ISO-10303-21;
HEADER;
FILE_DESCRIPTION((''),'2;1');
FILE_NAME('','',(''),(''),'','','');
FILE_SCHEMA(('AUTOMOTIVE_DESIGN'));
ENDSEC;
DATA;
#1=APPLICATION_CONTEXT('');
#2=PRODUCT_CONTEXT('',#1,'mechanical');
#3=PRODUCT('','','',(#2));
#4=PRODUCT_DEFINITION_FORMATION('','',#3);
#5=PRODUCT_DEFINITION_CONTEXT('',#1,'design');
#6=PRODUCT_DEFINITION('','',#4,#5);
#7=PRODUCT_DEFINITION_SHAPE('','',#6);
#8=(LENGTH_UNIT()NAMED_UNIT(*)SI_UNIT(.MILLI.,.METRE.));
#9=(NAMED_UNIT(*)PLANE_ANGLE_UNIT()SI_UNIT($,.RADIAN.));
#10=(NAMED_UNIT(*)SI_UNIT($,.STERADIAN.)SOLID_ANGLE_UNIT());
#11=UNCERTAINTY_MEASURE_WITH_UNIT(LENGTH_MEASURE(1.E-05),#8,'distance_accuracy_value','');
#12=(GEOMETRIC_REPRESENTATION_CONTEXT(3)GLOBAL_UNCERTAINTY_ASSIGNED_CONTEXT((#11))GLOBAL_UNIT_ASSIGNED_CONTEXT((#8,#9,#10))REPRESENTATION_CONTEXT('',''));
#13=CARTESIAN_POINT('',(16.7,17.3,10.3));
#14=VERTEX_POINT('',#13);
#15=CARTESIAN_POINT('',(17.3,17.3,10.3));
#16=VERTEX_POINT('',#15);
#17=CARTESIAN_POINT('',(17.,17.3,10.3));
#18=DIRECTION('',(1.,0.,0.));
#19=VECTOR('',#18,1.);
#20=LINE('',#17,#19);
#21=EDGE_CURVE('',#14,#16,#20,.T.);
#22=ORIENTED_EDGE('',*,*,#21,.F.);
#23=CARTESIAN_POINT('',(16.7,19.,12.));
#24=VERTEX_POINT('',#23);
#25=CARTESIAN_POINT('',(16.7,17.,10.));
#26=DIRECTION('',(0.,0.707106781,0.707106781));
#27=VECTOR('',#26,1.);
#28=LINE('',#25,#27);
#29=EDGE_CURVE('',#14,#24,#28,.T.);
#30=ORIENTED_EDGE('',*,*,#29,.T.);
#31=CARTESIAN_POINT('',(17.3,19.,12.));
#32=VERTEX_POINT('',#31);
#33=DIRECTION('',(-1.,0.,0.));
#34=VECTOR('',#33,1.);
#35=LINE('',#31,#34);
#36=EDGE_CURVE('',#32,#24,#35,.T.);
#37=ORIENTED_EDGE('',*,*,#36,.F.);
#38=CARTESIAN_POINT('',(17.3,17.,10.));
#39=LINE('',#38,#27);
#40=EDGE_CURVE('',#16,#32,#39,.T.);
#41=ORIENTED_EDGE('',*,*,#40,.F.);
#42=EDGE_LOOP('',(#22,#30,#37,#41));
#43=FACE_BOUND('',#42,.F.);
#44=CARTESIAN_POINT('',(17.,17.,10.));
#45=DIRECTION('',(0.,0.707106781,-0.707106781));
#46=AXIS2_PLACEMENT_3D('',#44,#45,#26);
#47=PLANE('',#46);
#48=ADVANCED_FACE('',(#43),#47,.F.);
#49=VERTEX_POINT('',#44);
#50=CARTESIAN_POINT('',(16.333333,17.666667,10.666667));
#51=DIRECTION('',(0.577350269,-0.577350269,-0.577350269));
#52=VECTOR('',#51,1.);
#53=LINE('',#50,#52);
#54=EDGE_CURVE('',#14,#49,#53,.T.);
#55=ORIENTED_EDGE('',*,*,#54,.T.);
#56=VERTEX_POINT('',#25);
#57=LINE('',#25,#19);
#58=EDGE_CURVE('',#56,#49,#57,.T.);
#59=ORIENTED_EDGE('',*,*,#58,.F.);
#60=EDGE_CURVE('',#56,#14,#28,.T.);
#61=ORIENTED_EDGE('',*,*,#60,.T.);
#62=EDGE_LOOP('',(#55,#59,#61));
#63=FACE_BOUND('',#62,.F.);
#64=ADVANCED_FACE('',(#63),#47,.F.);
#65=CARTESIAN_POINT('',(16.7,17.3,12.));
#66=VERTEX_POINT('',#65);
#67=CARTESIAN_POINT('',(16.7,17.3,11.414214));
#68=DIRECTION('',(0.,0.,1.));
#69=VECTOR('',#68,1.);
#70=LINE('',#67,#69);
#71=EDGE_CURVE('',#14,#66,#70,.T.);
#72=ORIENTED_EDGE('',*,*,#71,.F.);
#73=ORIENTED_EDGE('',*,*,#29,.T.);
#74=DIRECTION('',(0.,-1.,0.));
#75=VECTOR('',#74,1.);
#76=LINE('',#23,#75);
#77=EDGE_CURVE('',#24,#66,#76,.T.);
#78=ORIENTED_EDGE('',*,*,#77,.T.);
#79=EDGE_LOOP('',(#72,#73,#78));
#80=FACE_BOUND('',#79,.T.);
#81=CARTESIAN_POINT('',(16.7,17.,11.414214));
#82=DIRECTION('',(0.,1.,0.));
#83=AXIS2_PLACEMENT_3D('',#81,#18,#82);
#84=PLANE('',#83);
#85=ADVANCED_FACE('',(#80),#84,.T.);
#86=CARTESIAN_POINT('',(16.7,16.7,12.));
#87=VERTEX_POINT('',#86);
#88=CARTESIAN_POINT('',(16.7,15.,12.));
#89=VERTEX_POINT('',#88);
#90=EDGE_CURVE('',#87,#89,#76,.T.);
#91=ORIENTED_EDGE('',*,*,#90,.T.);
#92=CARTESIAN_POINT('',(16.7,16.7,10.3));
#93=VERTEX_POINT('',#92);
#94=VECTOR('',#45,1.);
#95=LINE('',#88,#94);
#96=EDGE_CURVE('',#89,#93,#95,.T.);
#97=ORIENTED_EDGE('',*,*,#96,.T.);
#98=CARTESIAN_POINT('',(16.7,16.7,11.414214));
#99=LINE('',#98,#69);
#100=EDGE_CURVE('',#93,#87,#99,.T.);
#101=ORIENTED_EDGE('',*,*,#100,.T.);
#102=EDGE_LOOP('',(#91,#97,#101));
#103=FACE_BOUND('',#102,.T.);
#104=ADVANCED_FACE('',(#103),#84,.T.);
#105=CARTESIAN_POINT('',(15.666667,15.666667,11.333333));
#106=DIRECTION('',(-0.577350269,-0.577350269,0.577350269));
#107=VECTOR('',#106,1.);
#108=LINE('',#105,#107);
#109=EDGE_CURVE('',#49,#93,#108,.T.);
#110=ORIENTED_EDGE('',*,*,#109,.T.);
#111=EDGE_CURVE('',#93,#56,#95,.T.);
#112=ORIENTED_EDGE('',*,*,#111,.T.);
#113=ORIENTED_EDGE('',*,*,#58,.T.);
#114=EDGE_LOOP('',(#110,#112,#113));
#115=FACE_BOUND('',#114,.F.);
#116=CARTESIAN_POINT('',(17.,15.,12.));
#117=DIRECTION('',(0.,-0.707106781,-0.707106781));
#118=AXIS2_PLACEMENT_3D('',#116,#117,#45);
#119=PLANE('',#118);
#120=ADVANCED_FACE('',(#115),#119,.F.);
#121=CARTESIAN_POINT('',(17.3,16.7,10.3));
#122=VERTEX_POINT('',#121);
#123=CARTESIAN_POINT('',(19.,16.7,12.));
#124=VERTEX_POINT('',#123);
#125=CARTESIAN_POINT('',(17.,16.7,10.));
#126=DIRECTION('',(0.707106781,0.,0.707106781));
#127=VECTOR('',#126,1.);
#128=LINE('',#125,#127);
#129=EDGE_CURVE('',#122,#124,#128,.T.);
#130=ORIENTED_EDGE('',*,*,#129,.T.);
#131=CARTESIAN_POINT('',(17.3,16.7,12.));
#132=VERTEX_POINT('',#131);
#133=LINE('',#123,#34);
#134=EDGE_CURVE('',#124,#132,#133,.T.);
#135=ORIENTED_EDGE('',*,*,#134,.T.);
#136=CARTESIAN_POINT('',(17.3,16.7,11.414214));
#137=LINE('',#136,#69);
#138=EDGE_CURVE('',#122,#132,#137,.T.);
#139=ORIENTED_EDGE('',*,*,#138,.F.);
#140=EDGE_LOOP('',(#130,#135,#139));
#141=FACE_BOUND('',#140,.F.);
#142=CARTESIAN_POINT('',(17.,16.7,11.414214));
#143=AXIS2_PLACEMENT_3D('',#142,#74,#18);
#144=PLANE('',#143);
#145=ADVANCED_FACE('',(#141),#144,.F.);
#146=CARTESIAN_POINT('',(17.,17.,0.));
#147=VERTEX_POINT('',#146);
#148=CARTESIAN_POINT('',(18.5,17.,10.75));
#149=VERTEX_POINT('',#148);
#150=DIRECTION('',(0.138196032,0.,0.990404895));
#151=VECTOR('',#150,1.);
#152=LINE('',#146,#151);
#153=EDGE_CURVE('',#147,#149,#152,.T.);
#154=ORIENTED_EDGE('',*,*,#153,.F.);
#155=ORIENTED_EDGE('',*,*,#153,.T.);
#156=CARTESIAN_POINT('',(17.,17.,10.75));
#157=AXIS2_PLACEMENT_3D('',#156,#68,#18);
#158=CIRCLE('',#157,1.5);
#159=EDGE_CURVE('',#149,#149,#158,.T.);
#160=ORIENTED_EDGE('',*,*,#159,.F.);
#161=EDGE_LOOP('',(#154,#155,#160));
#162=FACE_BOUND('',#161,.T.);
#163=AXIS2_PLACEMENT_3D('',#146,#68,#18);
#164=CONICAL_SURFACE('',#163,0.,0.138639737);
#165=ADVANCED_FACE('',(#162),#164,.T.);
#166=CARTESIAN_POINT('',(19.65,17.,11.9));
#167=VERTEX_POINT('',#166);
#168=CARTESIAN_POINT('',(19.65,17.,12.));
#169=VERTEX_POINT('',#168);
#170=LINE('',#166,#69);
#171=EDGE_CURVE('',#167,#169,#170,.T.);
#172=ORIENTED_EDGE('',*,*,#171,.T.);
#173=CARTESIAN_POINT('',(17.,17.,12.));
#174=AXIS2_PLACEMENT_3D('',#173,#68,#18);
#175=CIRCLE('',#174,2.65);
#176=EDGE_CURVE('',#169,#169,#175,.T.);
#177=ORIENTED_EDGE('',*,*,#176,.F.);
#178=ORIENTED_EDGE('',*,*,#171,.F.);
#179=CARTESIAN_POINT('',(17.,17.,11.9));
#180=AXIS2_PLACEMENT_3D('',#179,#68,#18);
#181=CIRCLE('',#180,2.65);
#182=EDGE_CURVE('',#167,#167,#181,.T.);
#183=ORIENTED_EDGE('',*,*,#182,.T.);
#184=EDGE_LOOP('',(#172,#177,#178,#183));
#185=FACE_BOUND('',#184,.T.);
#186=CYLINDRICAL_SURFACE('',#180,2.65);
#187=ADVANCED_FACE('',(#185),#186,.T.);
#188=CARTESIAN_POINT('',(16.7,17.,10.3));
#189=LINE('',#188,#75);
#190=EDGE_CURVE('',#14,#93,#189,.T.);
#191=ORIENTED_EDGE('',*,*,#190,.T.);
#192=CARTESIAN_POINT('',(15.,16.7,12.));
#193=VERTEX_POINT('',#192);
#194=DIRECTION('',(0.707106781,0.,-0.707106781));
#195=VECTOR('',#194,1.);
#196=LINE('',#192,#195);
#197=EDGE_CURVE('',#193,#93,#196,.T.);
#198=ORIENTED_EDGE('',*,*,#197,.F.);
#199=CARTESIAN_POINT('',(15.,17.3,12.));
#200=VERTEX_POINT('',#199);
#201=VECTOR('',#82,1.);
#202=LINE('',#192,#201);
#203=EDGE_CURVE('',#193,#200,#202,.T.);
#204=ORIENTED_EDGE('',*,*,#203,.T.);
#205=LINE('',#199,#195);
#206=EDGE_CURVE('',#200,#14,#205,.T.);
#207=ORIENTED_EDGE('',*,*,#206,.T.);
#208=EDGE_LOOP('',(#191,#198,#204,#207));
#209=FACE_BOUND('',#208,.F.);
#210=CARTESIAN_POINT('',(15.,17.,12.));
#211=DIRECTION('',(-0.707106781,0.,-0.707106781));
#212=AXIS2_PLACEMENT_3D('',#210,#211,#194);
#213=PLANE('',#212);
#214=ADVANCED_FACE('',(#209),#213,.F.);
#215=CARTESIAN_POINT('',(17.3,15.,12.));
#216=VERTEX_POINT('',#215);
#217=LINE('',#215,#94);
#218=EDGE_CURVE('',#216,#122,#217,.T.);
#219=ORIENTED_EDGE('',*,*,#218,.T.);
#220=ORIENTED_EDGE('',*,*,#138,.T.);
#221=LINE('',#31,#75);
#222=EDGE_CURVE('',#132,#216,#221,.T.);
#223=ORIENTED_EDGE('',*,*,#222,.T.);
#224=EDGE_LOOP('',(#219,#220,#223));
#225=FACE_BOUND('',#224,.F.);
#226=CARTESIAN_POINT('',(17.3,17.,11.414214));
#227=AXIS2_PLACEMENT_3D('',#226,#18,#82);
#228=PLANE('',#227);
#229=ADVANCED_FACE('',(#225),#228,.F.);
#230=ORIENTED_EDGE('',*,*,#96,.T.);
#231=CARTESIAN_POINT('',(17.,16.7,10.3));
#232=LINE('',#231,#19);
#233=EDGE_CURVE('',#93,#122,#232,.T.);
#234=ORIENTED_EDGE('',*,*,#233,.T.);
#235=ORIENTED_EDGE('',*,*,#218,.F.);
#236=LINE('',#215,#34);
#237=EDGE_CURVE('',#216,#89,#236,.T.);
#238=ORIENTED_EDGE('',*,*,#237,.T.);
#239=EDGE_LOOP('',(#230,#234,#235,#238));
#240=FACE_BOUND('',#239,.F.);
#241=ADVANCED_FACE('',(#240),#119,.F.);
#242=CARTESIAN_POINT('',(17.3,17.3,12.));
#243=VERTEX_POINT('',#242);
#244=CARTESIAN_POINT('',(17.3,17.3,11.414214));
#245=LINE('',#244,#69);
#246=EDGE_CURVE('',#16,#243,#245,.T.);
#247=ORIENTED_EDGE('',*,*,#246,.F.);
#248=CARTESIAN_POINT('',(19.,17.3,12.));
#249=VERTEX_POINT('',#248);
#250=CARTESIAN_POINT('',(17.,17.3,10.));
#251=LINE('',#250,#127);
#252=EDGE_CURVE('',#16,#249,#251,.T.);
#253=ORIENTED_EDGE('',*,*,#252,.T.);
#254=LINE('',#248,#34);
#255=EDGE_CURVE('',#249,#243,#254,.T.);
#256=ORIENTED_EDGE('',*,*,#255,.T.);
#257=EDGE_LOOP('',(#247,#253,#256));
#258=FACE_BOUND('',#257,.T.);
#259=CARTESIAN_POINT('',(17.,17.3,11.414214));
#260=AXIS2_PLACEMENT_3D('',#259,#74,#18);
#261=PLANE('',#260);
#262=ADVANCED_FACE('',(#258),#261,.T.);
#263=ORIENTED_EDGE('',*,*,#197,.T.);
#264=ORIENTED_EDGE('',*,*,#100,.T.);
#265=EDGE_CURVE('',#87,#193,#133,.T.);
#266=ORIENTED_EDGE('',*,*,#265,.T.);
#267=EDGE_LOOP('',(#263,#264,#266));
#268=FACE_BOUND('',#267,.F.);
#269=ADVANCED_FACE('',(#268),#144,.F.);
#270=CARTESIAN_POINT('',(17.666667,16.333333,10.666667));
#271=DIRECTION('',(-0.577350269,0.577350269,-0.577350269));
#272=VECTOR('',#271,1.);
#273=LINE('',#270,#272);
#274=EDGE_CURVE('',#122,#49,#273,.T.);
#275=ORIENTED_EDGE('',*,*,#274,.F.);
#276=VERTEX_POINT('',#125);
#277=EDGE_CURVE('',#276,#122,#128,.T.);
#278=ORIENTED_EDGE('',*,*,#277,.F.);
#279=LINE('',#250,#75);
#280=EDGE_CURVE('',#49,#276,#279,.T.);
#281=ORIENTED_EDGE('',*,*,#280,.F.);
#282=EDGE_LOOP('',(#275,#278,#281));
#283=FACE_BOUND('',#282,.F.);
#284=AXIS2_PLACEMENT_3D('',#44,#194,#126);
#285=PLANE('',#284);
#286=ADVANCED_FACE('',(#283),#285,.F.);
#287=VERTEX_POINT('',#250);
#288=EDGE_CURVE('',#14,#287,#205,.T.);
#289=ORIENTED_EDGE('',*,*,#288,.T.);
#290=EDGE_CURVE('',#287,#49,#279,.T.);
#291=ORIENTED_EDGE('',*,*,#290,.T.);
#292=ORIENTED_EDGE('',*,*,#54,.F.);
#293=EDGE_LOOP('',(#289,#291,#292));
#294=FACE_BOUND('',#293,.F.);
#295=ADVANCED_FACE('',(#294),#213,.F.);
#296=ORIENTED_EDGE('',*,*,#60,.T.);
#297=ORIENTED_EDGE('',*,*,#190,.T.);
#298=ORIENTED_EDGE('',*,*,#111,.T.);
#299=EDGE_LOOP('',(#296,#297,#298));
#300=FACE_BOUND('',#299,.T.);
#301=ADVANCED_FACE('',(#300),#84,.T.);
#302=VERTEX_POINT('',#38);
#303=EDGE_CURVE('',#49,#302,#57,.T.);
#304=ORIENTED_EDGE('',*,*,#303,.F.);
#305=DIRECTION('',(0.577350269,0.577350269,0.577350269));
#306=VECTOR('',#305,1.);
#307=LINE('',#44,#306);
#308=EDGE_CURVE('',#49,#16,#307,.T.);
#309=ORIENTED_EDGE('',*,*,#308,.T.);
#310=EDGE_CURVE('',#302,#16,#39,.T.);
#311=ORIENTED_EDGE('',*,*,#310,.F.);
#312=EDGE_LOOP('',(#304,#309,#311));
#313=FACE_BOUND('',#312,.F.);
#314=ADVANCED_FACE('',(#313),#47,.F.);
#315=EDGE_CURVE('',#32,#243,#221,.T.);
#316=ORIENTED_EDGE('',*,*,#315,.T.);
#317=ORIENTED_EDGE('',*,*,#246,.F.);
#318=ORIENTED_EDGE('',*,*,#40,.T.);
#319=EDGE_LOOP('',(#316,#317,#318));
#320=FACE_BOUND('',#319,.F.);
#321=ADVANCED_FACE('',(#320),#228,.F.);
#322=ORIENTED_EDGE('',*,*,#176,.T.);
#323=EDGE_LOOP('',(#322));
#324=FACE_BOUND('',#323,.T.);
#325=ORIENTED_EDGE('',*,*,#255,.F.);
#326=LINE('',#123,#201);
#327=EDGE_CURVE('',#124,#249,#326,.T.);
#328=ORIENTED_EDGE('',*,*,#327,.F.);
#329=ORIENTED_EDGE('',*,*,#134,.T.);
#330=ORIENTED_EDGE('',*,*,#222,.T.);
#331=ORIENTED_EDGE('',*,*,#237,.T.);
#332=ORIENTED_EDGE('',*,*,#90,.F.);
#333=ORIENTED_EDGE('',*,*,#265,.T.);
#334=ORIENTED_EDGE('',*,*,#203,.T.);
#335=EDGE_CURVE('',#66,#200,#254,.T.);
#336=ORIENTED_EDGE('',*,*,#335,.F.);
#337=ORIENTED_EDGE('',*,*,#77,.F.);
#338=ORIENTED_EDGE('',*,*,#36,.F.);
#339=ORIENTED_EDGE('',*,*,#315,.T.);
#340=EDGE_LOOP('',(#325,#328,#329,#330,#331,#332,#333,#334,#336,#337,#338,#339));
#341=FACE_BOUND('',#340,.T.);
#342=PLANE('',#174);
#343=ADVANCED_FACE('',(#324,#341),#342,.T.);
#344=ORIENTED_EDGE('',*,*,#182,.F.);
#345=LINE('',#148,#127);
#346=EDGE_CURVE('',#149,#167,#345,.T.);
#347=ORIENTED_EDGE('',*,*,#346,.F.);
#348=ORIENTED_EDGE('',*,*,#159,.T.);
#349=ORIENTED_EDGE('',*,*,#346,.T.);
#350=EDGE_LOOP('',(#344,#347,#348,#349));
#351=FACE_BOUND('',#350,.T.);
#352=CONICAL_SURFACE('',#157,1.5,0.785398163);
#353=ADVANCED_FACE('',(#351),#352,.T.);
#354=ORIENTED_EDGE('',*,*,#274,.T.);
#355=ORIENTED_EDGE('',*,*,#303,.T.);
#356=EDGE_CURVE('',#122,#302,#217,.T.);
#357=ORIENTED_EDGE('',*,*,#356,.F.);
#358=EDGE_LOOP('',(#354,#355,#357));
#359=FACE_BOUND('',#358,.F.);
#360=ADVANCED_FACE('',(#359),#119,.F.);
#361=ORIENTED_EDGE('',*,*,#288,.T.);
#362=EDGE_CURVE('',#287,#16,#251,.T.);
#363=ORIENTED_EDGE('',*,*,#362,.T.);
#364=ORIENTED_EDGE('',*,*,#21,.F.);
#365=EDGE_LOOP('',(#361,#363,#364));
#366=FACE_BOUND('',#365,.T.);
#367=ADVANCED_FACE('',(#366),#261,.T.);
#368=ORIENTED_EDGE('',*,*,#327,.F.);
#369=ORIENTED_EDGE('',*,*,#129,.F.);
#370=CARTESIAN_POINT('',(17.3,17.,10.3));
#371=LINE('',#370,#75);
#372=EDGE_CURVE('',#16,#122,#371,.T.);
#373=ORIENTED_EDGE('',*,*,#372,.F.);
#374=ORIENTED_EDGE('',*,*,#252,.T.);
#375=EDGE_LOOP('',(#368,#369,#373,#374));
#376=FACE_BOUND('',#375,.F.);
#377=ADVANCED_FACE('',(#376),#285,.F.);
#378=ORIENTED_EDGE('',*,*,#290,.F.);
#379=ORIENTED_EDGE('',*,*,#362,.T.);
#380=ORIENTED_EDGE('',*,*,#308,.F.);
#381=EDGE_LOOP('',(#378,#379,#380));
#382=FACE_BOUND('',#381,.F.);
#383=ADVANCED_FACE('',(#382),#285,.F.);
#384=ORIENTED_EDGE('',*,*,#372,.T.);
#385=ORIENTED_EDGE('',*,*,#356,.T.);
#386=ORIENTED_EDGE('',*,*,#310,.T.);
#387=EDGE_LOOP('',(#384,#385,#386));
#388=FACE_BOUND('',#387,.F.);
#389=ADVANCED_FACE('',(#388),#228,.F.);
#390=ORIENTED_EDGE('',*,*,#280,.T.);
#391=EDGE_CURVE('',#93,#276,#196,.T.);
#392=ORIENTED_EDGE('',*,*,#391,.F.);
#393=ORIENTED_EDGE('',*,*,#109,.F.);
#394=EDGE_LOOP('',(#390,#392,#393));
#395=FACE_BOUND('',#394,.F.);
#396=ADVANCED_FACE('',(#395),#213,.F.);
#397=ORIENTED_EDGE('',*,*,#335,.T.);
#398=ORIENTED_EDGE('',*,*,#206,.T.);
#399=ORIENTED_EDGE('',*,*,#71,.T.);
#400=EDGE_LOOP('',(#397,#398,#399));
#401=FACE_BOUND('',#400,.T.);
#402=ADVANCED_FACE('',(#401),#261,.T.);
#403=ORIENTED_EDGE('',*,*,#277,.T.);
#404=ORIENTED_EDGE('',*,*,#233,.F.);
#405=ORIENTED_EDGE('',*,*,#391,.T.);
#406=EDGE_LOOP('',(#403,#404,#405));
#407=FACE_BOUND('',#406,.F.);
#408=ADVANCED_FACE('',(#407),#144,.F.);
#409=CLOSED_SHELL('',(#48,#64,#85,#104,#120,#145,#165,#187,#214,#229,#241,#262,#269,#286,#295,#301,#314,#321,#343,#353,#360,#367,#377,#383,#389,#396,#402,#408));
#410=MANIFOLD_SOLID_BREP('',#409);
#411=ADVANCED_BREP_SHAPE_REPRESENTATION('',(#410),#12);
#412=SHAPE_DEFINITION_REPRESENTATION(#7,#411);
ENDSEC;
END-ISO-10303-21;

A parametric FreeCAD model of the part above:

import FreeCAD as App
import Part
import Sketcher
Q = App.Units.Quantity

doc = App.newDocument("Part")
body = doc.addObject("PartDesign::Body", "Body")

# Sketch on XZ plane
sketch1 = body.newObject("Sketcher::SketchObject", "Sketch")
sketch1.AttachmentSupport = (doc.getObject("XZ_Plane"), [""])
sketch1.MapMode = "FlatFace"
sketch1.addGeometry([
    Part.LineSegment(App.Vector(0, 0, 0), App.Vector(0, -12, 0)),  # 0
    Part.LineSegment(App.Vector(0, -12, 0), App.Vector(1.5, -1.25, 0)),  # 1
    Part.LineSegment(App.Vector(1.5, -1.25, 0), App.Vector(2.65, -0.1, 0)),  # 2
    Part.LineSegment(App.Vector(2.65, -0.1, 0), App.Vector(2.65, 0, 0)),  # 3
    Part.LineSegment(App.Vector(2.65, 0, 0), App.Vector(0, 0, 0)),  # 4
], False)
sketch1.addConstraint([
    Sketcher.Constraint("Coincident", 0, 2, 1, 1),
    Sketcher.Constraint("Coincident", 1, 2, 2, 1),
    Sketcher.Constraint("Coincident", 2, 2, 3, 1),
    Sketcher.Constraint("Coincident", 3, 2, 4, 1),
    Sketcher.Constraint("Coincident", 4, 2, 0, 1),
    Sketcher.Constraint("Vertical", 0),
    Sketcher.Constraint("Vertical", 3),
    Sketcher.Constraint("Horizontal", 4),
    Sketcher.Constraint("Coincident", 4, 2, -1, 1),
    Sketcher.Constraint("DistanceY", 0, 2, 0, 1, Q("12 mm")),
    Sketcher.Constraint("Angle", 2, Q("45 deg")),
    Sketcher.Constraint("DistanceY", 3, 1, 3, 2, Q("0.1 mm")),
    Sketcher.Constraint("DistanceX", 4, 2, 4, 1, Q("2.65 mm")),
    Sketcher.Constraint("DistanceX", -1, 1, 1, 2, Q("1.5 mm")),
])
revolution = body.newObject("PartDesign::Revolution", "Revolution")
revolution.Profile = sketch1
revolution.ReferenceAxis = (sketch1, ["V_Axis"])
revolution.Angle = 360

# Sketch on XZ plane
sketch2 = body.newObject("Sketcher::SketchObject", "Sketch001")
sketch2.AttachmentSupport = (doc.getObject("XZ_Plane"), [""])
sketch2.MapMode = "FlatFace"
sketch2.addGeometry([
    Part.LineSegment(App.Vector(-2, 0, 0), App.Vector(0, -2, 0)),
    Part.LineSegment(App.Vector(0, -2, 0), App.Vector(2, 0, 0)),
    Part.LineSegment(App.Vector(2, 0, 0), App.Vector(-2, 0, 0)),
], False)
sketch2.addConstraint([
    Sketcher.Constraint("Coincident", 0, 2, 1, 1),
    Sketcher.Constraint("Coincident", 1, 2, 2, 1),
    Sketcher.Constraint("Coincident", 2, 2, 0, 1),
    Sketcher.Constraint("Horizontal", 2),
    Sketcher.Constraint("Symmetric", 1, 2, 2, 2, -1, 1),
    Sketcher.Constraint("PointOnObject", 0, 2, -2),
    Sketcher.Constraint("Perpendicular", 0, 1),
    Sketcher.Constraint("DistanceX", 2, 2, 2, 1, Q("4 mm")),
])
pocket1 = body.newObject("PartDesign::Pocket", "Pocket")
pocket1.Profile = sketch2
pocket1.Length = 0.6
pocket1.Midplane = True
doc.recompute()

polarpattern = body.newObject("PartDesign::PolarPattern", "PolarPattern")
polarpattern.Originals = [pocket1]
polarpattern.Axis = (doc.getObject("Z_Axis"), [""])
polarpattern.Angle = 90
polarpattern.Occurrences = 2
body.Tip = polarpattern
body2 = doc.addObject("PartDesign::Body", "Body001")
doc.recompute()

body.Placement = App.Placement(App.Vector(17, 17, 12), App.Rotation(App.Vector(0, 0, 1), 0))
boolean = body2.newObject("PartDesign::Boolean", "Boolean")
boolean.Type = "Fuse"
boolean.addObjects([body])

doc.recompute()
